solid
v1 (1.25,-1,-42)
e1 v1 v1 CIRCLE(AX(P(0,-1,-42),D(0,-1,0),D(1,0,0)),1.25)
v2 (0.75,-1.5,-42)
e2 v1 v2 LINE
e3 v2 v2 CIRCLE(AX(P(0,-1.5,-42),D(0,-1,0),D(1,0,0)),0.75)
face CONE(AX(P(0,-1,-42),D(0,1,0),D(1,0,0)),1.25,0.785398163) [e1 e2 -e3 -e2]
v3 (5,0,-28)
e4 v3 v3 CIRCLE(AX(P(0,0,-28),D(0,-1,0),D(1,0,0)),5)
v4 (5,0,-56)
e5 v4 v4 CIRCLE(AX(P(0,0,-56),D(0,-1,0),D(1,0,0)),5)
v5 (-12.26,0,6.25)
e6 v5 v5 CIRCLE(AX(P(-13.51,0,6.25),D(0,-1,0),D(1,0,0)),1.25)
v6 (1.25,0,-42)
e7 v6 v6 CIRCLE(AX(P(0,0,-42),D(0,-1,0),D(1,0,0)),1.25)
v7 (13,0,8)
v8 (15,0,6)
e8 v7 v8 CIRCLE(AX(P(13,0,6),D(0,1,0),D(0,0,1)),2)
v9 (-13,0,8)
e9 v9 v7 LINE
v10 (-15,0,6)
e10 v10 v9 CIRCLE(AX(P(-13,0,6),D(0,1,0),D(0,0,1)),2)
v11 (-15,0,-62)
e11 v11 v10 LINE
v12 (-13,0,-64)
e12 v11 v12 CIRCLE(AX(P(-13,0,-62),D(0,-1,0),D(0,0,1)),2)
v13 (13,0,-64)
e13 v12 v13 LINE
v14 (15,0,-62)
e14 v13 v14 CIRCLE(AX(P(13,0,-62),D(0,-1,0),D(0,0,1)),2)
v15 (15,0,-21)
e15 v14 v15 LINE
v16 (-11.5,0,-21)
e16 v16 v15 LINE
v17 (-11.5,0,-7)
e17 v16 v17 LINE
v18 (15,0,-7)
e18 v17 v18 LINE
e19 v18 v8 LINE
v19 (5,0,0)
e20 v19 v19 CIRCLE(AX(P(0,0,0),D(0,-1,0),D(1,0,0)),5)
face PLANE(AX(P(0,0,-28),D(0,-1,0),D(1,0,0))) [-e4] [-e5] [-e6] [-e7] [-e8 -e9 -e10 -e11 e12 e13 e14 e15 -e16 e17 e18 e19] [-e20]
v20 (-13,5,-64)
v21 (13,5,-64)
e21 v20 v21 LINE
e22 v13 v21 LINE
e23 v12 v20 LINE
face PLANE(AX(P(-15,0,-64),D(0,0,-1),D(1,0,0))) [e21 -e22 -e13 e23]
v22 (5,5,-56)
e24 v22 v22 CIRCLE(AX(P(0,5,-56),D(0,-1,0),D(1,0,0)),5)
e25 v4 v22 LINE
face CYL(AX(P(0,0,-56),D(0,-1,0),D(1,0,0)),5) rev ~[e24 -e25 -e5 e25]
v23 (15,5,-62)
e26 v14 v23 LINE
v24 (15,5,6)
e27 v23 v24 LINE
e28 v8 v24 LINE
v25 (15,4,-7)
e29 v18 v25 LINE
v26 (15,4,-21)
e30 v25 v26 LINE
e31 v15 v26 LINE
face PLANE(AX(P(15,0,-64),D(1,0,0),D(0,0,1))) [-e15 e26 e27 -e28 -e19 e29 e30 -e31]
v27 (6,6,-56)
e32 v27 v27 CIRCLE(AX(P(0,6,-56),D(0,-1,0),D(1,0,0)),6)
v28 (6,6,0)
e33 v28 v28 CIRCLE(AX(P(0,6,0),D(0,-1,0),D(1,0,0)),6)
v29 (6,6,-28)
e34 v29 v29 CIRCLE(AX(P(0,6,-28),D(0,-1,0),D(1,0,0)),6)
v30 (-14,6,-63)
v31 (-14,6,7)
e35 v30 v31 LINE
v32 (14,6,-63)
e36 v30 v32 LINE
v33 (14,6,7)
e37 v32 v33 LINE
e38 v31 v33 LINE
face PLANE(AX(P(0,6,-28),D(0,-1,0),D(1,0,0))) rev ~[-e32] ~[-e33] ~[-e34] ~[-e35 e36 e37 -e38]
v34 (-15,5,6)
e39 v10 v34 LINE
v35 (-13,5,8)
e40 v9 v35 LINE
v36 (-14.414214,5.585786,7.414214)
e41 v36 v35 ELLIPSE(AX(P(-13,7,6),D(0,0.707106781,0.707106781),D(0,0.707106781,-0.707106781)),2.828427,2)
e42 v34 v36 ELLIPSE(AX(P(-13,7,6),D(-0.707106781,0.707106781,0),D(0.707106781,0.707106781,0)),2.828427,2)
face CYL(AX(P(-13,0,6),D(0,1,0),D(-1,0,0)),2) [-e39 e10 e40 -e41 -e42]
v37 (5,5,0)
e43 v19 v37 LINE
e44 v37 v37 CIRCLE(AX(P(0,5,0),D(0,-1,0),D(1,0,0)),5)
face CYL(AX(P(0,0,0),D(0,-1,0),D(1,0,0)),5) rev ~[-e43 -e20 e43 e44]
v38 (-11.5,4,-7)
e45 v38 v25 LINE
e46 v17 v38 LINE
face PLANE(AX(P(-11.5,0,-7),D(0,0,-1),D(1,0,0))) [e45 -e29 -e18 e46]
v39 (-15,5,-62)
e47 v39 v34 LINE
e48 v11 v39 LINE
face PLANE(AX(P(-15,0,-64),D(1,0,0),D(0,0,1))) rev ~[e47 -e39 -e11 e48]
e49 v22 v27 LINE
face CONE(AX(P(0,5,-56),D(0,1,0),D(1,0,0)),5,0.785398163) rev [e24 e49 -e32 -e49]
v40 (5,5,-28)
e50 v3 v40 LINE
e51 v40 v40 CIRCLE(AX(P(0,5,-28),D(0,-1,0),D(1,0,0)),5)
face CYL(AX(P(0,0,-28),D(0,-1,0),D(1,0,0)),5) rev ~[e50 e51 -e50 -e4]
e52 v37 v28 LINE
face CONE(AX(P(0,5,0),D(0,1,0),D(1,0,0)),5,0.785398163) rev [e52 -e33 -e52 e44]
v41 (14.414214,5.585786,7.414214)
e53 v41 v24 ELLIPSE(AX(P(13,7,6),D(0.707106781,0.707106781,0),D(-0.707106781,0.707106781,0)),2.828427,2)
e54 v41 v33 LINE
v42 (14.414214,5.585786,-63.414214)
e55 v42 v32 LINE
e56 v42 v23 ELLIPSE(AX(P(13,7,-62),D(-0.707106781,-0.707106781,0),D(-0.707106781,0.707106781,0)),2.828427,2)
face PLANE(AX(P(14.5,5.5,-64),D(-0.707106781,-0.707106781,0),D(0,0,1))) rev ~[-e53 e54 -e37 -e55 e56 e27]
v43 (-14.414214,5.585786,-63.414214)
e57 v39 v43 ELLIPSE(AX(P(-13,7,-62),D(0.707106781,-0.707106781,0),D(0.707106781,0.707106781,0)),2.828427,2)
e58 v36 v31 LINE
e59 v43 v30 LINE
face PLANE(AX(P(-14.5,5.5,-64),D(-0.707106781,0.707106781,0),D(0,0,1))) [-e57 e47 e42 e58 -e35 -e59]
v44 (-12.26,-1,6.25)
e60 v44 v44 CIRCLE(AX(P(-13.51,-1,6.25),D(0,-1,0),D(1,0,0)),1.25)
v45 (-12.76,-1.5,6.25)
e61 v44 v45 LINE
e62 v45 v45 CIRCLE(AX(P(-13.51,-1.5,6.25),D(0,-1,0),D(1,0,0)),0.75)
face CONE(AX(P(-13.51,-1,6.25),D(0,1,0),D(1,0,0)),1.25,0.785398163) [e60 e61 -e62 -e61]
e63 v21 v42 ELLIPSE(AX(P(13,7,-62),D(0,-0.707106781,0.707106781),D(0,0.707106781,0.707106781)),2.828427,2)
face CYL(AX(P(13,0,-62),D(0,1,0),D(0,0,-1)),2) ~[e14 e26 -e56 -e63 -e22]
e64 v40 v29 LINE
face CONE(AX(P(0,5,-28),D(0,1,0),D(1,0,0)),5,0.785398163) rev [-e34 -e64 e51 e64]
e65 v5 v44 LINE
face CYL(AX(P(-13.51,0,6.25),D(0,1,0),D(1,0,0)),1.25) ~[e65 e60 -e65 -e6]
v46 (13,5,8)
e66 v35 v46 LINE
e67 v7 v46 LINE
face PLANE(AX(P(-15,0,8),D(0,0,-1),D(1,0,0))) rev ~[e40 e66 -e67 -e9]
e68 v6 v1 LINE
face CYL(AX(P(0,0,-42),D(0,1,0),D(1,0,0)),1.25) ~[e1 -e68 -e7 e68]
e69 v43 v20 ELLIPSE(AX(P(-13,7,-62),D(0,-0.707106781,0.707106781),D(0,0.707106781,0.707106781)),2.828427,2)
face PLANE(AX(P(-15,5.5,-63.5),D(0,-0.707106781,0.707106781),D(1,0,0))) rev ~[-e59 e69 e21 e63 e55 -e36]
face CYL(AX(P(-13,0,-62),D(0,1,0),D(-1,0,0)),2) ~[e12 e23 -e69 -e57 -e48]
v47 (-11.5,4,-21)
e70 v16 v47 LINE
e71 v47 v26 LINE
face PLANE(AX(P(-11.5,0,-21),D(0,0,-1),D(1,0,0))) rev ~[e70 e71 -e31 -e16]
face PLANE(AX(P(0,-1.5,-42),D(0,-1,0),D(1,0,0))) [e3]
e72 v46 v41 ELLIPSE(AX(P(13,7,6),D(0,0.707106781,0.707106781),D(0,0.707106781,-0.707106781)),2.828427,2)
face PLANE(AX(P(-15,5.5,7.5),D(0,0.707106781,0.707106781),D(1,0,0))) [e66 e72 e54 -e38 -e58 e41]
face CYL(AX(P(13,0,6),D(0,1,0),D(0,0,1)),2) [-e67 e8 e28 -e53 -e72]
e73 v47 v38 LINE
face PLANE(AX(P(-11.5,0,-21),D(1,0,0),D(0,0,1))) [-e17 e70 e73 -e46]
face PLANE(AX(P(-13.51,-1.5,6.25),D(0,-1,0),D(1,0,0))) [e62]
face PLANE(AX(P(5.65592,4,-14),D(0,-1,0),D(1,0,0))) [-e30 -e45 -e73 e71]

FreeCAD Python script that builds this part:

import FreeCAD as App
import Part
import Sketcher
from FreeCAD import Vector


def edges_at(feature, points):
    """Names of the edges that pass closest to the given points."""
    edges = feature.Shape.Edges
    near = lambda p: min(range(len(edges)), key=lambda i: edges[i].distToShape(Part.Vertex(*p))[0])
    return sorted({f"Edge{near(p) + 1}" for p in points})


def add_polygon(sketch, points):
    """Adds a closed chain of lines whose ends are joined by coincident constraints."""
    first, n = sketch.GeometryCount, len(points)
    for a, b in zip(points, points[1:] + points[:1]):
        sketch.addGeometry(Part.LineSegment(App.Vector(*a, 0), App.Vector(*b, 0)), False)
    for i in range(n):
        sketch.addConstraint(Sketcher.Constraint("Coincident", first + i, 2, first + (i + 1) % n, 1))

doc = App.newDocument("Part")
body = doc.addObject("PartDesign::Body", "Body")

# Sketch on XZ plane
sketch1 = body.newObject("Sketcher::SketchObject", "Sketch")
sketch1.AttachmentSupport = (doc.getObject("XZ_Plane"), [""])
sketch1.MapMode = "FlatFace"
add_polygon(sketch1, [(-15, 8), (-15, -64), (15, -64), (15, 8)])  # lines 0-3
sketch1.addGeometry(Part.Circle(Vector(0, -56, 0), Vector(0, 0, 1), 5), False)  # 4
sketch1.addGeometry(Part.Circle(Vector(0, -28, 0), Vector(0, 0, 1), 5), False)  # 5
sketch1.addGeometry(Part.Circle(Vector(0, 0, 0), Vector(0, 0, 1), 5), False)  # 6
sketch1.addConstraint(Sketcher.Constraint("Vertical", 0))
sketch1.addConstraint(Sketcher.Constraint("Horizontal", 1))
sketch1.addConstraint(Sketcher.Constraint("Vertical", 2))
sketch1.addConstraint(Sketcher.Constraint("Horizontal", 3))
sketch1.addConstraint(Sketcher.Constraint("Coincident", 6, 3, -1, 1))
sketch1.addConstraint(Sketcher.Constraint("Equal", 4, 5))
sketch1.addConstraint(Sketcher.Constraint("Equal", 5, 6))
sketch1.addConstraint(Sketcher.Constraint("PointOnObject", 4, 3, -2))
sketch1.addConstraint(Sketcher.Constraint("PointOnObject", 5, 3, -2))
sketch1.addConstraint(Sketcher.Constraint("Diameter", 4, 10.0))
sketch1.addConstraint(Sketcher.Constraint("DistanceX", 1, 1, 1, 2, 30.0))
sketch1.addConstraint(Sketcher.Constraint("DistanceY", 0, 2, 0, 1, 72.0))
sketch1.addConstraint(Sketcher.Constraint("DistanceY", 4, 3, -1, 1, 56.0))
sketch1.addConstraint(Sketcher.Constraint("DistanceY", 5, 3, -1, 1, 28.0))
sketch1.addConstraint(Sketcher.Constraint("DistanceX", 0, 2, -1, 1, 15.0))
sketch1.addConstraint(Sketcher.Constraint("DistanceY", 0, 2, -1, 1, 64.0))
pad1 = body.newObject("PartDesign::Pad", "Pad")
pad1.Profile = sketch1
pad1.Length = 6
pad1.Reversed = True

# Sketch on XZ plane
sketch2 = body.newObject("Sketcher::SketchObject", "Sketch001")
sketch2.AttachmentSupport = (doc.getObject("XZ_Plane"), [""])
sketch2.MapMode = "FlatFace"
sketch2.addGeometry(Part.Circle(Vector(-13.5, 6.2, 0), Vector(0, 0, 1), 1.2), False)
sketch2.addGeometry(Part.Circle(Vector(0, -42, 0), Vector(0, 0, 1), 1.2), False)
sketch2.addConstraint(Sketcher.Constraint("Equal", 0, 1))
sketch2.addConstraint(Sketcher.Constraint("PointOnObject", 1, 3, -2))
sketch2.addConstraint(Sketcher.Constraint("Diameter", 0, 2.5))
sketch2.addConstraint(Sketcher.Constraint("DistanceY", 1, 3, -1, 1, 42.0))
sketch2.addConstraint(Sketcher.Constraint("DistanceX", 0, 3, -1, 1, 13.51))
sketch2.addConstraint(Sketcher.Constraint("DistanceY", -1, 1, 0, 3, 6.25))
pad2 = body.newObject("PartDesign::Pad", "Pad001")
pad2.Profile = sketch2
pad2.Length = 1.5
doc.recompute()

chamfer = body.newObject("PartDesign::Chamfer", "Chamfer")
chamfer.Base = (pad2, edges_at(pad2, [(-14.76, -1.5, 6.25), (-1.25, -1.5, -42)]))
chamfer.Size = 0.5
doc.recompute()

chamfer2 = body.newObject("PartDesign::Chamfer", "Chamfer001")
chamfer2.Base = (chamfer, edges_at(chamfer, [
    (-5, 6, -56),
    (-5, 6, -28),
    (-5, 6, 0),
    (-15, 6, -28),
    (0, 6, -64),
    (0, 6, 8),
    (15, 6, -28),
]))
chamfer2.Size = 1
doc.recompute()

fillet = body.newObject("PartDesign::Fillet", "Fillet")
fillet.Base = (chamfer2, edges_at(chamfer2, [
    (-15, 2.5, 8),
    (15, 2.5, 8),
    (15, 2.5, -64),
    (-15, 2.5, -64),
]))
fillet.Radius = 2

# Sketch on XZ plane
sketch3 = body.newObject("Sketcher::SketchObject", "Sketch002")
sketch3.AttachmentSupport = (doc.getObject("XZ_Plane"), [""])
sketch3.MapMode = "FlatFace"
add_polygon(sketch3, [(-12, -7), (-12, -21), (23, -21), (23, -7)])  # lines 0-3
sketch3.addConstraint(Sketcher.Constraint("Vertical", 0))
sketch3.addConstraint(Sketcher.Constraint("Horizontal", 1))
sketch3.addConstraint(Sketcher.Constraint("Vertical", 2))
sketch3.addConstraint(Sketcher.Constraint("Horizontal", 3))
sketch3.addConstraint(Sketcher.Constraint("DistanceY", 0, 2, 0, 1, 14.0))
sketch3.addConstraint(Sketcher.Constraint("DistanceY", 0, 2, -1, 1, 21.0))
sketch3.addConstraint(Sketcher.Constraint("DistanceX", 0, 2, -1, 1, 11.5))
sketch3.addConstraint(Sketcher.Constraint("DistanceX", 1, 1, 1, 2, 34.31184))
pocket1 = body.newObject("PartDesign::Pocket", "Pocket")
pocket1.Profile = sketch3
pocket1.Length = 4

doc.recompute()
